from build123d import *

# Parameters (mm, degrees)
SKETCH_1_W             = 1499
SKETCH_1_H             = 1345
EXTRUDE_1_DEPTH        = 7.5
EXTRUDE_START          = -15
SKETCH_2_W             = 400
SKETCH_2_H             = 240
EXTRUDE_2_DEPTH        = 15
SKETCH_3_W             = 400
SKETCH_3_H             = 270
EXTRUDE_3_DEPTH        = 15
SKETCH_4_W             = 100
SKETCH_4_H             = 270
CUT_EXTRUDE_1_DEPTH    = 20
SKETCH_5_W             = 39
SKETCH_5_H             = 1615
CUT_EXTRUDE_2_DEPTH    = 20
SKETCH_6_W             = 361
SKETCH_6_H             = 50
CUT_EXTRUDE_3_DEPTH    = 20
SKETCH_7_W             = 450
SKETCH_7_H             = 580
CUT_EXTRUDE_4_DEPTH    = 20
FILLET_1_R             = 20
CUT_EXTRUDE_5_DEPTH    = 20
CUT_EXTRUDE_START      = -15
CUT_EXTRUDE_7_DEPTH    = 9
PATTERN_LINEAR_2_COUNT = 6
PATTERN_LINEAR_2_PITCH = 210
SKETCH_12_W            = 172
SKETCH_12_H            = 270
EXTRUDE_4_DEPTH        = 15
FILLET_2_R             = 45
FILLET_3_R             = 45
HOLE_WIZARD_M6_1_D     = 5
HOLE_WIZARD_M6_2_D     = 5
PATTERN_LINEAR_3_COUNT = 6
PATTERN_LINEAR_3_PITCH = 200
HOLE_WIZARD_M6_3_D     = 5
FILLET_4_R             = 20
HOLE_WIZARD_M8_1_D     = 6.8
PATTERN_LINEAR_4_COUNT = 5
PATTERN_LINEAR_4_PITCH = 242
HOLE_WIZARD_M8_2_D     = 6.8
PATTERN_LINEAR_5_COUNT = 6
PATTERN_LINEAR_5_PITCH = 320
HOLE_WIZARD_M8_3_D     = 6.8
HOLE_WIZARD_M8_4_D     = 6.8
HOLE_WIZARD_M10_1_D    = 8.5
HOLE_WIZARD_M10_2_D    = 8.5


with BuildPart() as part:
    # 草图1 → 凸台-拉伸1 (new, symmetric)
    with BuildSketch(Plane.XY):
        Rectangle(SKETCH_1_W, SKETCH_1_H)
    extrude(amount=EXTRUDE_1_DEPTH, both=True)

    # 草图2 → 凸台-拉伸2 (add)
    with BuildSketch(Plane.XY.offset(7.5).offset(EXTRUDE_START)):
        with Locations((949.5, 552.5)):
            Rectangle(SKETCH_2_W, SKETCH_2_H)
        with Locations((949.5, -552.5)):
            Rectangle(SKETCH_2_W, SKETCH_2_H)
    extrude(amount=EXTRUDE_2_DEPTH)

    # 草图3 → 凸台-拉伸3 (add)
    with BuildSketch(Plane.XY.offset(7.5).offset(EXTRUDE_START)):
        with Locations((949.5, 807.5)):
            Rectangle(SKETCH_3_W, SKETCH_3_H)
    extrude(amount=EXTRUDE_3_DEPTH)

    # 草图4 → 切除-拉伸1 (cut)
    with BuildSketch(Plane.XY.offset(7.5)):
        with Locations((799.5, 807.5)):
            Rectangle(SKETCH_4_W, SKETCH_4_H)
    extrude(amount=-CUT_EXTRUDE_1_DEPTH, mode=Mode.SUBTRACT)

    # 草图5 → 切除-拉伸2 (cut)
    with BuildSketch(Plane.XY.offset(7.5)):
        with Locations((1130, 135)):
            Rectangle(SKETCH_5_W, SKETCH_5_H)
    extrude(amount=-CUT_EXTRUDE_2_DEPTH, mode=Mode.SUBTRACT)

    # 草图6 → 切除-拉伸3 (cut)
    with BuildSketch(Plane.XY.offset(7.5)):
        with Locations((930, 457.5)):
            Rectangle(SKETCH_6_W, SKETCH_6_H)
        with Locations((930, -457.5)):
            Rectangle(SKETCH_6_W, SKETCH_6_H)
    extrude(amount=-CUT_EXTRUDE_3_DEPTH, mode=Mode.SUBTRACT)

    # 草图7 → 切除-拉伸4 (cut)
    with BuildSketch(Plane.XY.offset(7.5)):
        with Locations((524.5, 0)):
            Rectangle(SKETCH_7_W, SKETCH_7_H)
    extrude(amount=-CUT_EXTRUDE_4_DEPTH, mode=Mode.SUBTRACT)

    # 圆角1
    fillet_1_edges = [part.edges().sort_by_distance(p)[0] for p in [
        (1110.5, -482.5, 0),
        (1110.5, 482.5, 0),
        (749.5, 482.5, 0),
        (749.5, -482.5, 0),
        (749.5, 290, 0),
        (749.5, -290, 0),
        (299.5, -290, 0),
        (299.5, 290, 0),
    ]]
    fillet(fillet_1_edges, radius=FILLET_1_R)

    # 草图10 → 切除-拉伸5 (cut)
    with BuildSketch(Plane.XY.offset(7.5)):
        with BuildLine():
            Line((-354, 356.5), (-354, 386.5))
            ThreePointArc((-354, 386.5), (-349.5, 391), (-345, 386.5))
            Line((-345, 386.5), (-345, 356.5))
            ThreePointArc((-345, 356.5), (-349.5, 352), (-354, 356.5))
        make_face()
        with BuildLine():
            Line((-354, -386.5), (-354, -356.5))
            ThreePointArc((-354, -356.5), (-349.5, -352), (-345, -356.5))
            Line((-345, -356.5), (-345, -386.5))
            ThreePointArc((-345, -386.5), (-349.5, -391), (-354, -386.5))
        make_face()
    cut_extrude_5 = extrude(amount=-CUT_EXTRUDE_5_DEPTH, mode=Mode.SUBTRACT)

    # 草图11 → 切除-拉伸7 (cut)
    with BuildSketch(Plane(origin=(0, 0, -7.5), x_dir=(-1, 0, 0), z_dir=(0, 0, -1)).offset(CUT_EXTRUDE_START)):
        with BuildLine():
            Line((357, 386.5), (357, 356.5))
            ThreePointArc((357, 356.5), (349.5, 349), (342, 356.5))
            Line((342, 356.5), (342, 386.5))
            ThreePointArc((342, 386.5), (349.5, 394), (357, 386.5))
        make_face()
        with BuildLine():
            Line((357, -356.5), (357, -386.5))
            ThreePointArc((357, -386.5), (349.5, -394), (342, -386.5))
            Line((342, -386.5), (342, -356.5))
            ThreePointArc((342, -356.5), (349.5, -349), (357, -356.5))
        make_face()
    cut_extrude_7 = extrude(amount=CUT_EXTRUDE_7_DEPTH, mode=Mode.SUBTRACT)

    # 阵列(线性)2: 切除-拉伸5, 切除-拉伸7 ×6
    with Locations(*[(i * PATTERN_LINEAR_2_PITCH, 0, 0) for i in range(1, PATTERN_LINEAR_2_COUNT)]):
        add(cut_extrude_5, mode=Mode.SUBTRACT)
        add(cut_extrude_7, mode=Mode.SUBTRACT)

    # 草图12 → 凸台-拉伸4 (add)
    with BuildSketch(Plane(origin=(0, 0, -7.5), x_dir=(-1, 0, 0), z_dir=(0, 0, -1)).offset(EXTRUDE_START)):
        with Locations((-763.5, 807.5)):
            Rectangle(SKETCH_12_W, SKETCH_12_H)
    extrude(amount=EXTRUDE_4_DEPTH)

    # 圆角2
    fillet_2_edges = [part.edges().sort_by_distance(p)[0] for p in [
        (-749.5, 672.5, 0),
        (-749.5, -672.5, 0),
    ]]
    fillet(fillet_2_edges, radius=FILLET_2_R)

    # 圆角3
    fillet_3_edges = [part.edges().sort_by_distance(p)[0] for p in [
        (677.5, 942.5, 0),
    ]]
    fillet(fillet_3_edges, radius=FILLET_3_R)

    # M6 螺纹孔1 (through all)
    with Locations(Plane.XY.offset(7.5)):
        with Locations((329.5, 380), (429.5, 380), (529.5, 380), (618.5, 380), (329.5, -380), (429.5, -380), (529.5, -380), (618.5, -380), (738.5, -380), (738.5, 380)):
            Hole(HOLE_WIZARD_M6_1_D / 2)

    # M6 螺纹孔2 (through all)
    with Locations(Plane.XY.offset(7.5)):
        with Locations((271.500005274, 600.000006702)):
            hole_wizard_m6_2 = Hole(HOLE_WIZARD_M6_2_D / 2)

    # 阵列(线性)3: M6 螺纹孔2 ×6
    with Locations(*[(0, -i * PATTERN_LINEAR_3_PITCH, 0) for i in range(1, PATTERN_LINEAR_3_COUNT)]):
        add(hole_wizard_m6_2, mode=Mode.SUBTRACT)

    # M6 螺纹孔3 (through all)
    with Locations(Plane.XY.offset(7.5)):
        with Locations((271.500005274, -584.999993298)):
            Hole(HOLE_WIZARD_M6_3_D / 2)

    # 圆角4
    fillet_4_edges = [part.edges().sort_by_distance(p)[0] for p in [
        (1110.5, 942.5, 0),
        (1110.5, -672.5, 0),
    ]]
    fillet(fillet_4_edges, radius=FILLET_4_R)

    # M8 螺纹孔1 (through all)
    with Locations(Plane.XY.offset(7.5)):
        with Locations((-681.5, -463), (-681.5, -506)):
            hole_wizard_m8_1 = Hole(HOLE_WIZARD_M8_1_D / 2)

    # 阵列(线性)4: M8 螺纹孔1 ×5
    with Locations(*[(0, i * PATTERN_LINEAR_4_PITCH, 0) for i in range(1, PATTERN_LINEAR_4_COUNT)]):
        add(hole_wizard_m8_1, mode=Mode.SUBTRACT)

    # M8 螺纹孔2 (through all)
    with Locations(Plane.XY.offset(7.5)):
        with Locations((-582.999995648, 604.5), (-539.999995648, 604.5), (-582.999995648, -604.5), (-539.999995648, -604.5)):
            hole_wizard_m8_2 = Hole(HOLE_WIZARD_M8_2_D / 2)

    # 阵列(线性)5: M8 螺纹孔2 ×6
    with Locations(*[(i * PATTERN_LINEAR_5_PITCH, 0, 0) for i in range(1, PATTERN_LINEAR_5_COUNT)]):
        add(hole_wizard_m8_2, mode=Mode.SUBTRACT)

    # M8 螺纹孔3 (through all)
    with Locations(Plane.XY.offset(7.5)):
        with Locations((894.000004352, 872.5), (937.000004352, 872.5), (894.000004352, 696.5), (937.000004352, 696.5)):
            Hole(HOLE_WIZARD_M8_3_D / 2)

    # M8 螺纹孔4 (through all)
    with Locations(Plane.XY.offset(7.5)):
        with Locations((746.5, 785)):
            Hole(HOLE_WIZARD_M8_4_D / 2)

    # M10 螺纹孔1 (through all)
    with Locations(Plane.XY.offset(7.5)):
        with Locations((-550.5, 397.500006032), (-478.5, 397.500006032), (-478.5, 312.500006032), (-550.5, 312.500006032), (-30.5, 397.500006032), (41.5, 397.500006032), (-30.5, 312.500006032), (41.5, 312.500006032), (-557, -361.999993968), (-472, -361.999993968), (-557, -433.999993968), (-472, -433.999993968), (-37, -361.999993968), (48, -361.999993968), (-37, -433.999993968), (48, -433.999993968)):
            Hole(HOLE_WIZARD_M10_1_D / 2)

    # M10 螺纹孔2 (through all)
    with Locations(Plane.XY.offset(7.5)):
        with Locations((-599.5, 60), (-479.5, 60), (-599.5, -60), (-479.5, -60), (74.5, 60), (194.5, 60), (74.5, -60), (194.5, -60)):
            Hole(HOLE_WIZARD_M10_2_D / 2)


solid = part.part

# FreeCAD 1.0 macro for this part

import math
import FreeCAD as App
import Part
import Sketcher

V = App.Vector
Q = App.Units.Quantity


def edges_at(feature, points):
    """Names of the edges that pass closest to the given points."""
    edges = feature.Shape.Edges
    near = lambda p: min(range(len(edges)), key=lambda i: edges[i].distToShape(Part.Vertex(*p))[0])
    return sorted({f"Edge{near(p) + 1}" for p in points})


def add_polygon(sketch, points):
    """Adds a closed chain of lines whose ends are joined by coincident constraints."""
    first, n = sketch.GeometryCount, len(points)
    for a, b in zip(points, points[1:] + points[:1]):
        sketch.addGeometry(Part.LineSegment(App.Vector(*a, 0), App.Vector(*b, 0)), False)
    for i in range(n):
        sketch.addConstraint(Sketcher.Constraint("Coincident", first + i, 2, first + (i + 1) % n, 1))

doc = App.newDocument("Part")
body = doc.addObject("PartDesign::Body", "Body")

sketch1 = body.newObject("Sketcher::SketchObject", "Sketch")
sketch1.AttachmentSupport = (doc.getObject("XY_Plane"), [""])
sketch1.MapMode = "FlatFace"
add_polygon(sketch1, [(-749.5, 672.5), (-749.5, -672.5), (749.5, -672.5), (749.5, 672.5)])
sketch1.addConstraint(Sketcher.Constraint("Vertical", 0))
sketch1.addConstraint(Sketcher.Constraint("Horizontal", 1))
sketch1.addConstraint(Sketcher.Constraint("Vertical", 2))
sketch1.addConstraint(Sketcher.Constraint("Horizontal", 3))
sketch1.addConstraint(Sketcher.Constraint("Symmetric", 0, 2, 2, 2, -1, 1))
sketch1.addConstraint(Sketcher.Constraint("DistanceX", 1, 1, 1, 2, Q("1499 mm")))
sketch1.addConstraint(Sketcher.Constraint("DistanceY", 0, 2, 0, 1, Q("1345 mm")))
pad1 = body.newObject("PartDesign::Pad", "Pad")
pad1.Profile = sketch1
pad1.Length = 15
pad1.Midplane = True

sketch2 = body.newObject("Sketcher::SketchObject", "Sketch001")
sketch2.AttachmentSupport = (doc.getObject("XY_Plane"), [""])
sketch2.MapMode = "FlatFace"
sketch2.AttachmentOffset = App.Placement(V(0, 0, -7.5), App.Rotation())
add_polygon(sketch2, [(749.5, 672.5), (749.5, 432.5), (1149.5, 432.5), (1149.5, 672.5)])
add_polygon(sketch2, [(749.5, -432.5), (749.5, -672.5), (1149.5, -672.5), (1149.5, -432.5)])
sketch2.addConstraint(Sketcher.Constraint("Vertical", 0))
sketch2.addConstraint(Sketcher.Constraint("Horizontal", 1))
sketch2.addConstraint(Sketcher.Constraint("Vertical", 2))
sketch2.addConstraint(Sketcher.Constraint("Horizontal", 3))
sketch2.addConstraint(Sketcher.Constraint("Vertical", 4))
sketch2.addConstraint(Sketcher.Constraint("Horizontal", 5))
sketch2.addConstraint(Sketcher.Constraint("Vertical", 6))
sketch2.addConstraint(Sketcher.Constraint("Horizontal", 7))
sketch2.addConstraint(Sketcher.Constraint("Symmetric", 3, 2, 4, 2, -1))
sketch2.addConstraint(Sketcher.Constraint("Symmetric", 1, 2, 6, 2, -1))
sketch2.addConstraint(Sketcher.Constraint("DistanceX", 1, 1, 1, 2, Q("400 mm")))
sketch2.addConstraint(Sketcher.Constraint("DistanceY", 0, 2, 0, 1, Q("240 mm")))
sketch2.addConstraint(Sketcher.Constraint("DistanceY", 4, 2, 0, 2, Q("1105 mm")))
sketch2.addConstraint(Sketcher.Constraint("DistanceX", -1, 1, 0, 2, Q("749.5 mm")))
pad2 = body.newObject("PartDesign::Pad", "Pad001")
pad2.Profile = sketch2
pad2.Length = 15

sketch3 = body.newObject("Sketcher::SketchObject", "Sketch002")
sketch3.AttachmentSupport = (doc.getObject("XY_Plane"), [""])
sketch3.MapMode = "FlatFace"
sketch3.AttachmentOffset = App.Placement(V(0, 0, -7.5), App.Rotation())
add_polygon(sketch3, [(749.5, 942.5), (749.5, 672.5), (1149.5, 672.5), (1149.5, 942.5)])
sketch3.addConstraint(Sketcher.Constraint("Vertical", 0))
sketch3.addConstraint(Sketcher.Constraint("Horizontal", 1))
sketch3.addConstraint(Sketcher.Constraint("Vertical", 2))
sketch3.addConstraint(Sketcher.Constraint("Horizontal", 3))
sketch3.addConstraint(Sketcher.Constraint("DistanceX", 1, 1, 1, 2, Q("400 mm")))
sketch3.addConstraint(Sketcher.Constraint("DistanceY", 0, 2, 0, 1, Q("270 mm")))
sketch3.addConstraint(Sketcher.Constraint("DistanceX", -1, 1, 0, 2, Q("749.5 mm")))
sketch3.addConstraint(Sketcher.Constraint("DistanceY", -1, 1, 0, 2, Q("672.5 mm")))
pad3 = body.newObject("PartDesign::Pad", "Pad002")
pad3.Profile = sketch3
pad3.Length = 15

sketch4 = body.newObject("Sketcher::SketchObject", "Sketch003")
sketch4.AttachmentSupport = (doc.getObject("XY_Plane"), [""])
sketch4.MapMode = "FlatFace"
sketch4.AttachmentOffset = App.Placement(V(0, 0, 7.5), App.Rotation())
add_polygon(sketch4, [(749.5, 942.5), (749.5, 672.5), (849.5, 672.5), (849.5, 942.5)])
sketch4.addConstraint(Sketcher.Constraint("Vertical", 0))
sketch4.addConstraint(Sketcher.Constraint("Horizontal", 1))
sketch4.addConstraint(Sketcher.Constraint("Vertical", 2))
sketch4.addConstraint(Sketcher.Constraint("Horizontal", 3))
sketch4.addConstraint(Sketcher.Constraint("DistanceX", 1, 1, 1, 2, Q("100 mm")))
sketch4.addConstraint(Sketcher.Constraint("DistanceY", 0, 2, 0, 1, Q("270 mm")))
sketch4.addConstraint(Sketcher.Constraint("DistanceX", -1, 1, 0, 2, Q("749.5 mm")))
sketch4.addConstraint(Sketcher.Constraint("DistanceY", -1, 1, 0, 2, Q("672.5 mm")))
pocket1 = body.newObject("PartDesign::Pocket", "Pocket")
pocket1.Profile = sketch4
pocket1.Length = 20

sketch5 = body.newObject("Sketcher::SketchObject", "Sketch004")
sketch5.AttachmentSupport = (doc.getObject("XY_Plane"), [""])
sketch5.MapMode = "FlatFace"
sketch5.AttachmentOffset = App.Placement(V(0, 0, 7.5), App.Rotation())
add_polygon(sketch5, [(1110.5, 942.5), (1110.5, -672.5), (1149.5, -672.5), (1149.5, 942.5)])
sketch5.addConstraint(Sketcher.Constraint("Vertical", 0))
sketch5.addConstraint(Sketcher.Constraint("Horizontal", 1))
sketch5.addConstraint(Sketcher.Constraint("Vertical", 2))
sketch5.addConstraint(Sketcher.Constraint("Horizontal", 3))
sketch5.addConstraint(Sketcher.Constraint("DistanceX", 1, 1, 1, 2, Q("39 mm")))
sketch5.addConstraint(Sketcher.Constraint("DistanceY", 0, 2, 0, 1, Q("1615 mm")))
sketch5.addConstraint(Sketcher.Constraint("DistanceX", -1, 1, 0, 2, Q("1110.5 mm")))
sketch5.addConstraint(Sketcher.Constraint("DistanceY", 0, 2, -1, 1, Q("672.5 mm")))
pocket2 = body.newObject("PartDesign::Pocket", "Pocket001")
pocket2.Profile = sketch5
pocket2.Length = 20

sketch6 = body.newObject("Sketcher::SketchObject", "Sketch005")
sketch6.AttachmentSupport = (doc.getObject("XY_Plane"), [""])
sketch6.MapMode = "FlatFace"
sketch6.AttachmentOffset = App.Placement(V(0, 0, 7.5), App.Rotation())
add_polygon(sketch6, [(749.5, 482.5), (749.5, 432.5), (1110.5, 432.5), (1110.5, 482.5)])
add_polygon(sketch6, [(749.5, -432.5), (749.5, -482.5), (1110.5, -482.5), (1110.5, -432.5)])
sketch6.addConstraint(Sketcher.Constraint("Vertical", 0))
sketch6.addConstraint(Sketcher.Constraint("Horizontal", 1))
sketch6.addConstraint(Sketcher.Constraint("Vertical", 2))
sketch6.addConstraint(Sketcher.Constraint("Horizontal", 3))
sketch6.addConstraint(Sketcher.Constraint("Vertical", 4))
sketch6.addConstraint(Sketcher.Constraint("Horizontal", 5))
sketch6.addConstraint(Sketcher.Constraint("Vertical", 6))
sketch6.addConstraint(Sketcher.Constraint("Horizontal", 7))
sketch6.addConstraint(Sketcher.Constraint("Symmetric", 3, 2, 4, 2, -1))
sketch6.addConstraint(Sketcher.Constraint("Symmetric", 1, 2, 6, 2, -1))
sketch6.addConstraint(Sketcher.Constraint("DistanceX", 1, 1, 1, 2, Q("361 mm")))
sketch6.addConstraint(Sketcher.Constraint("DistanceY", 0, 2, 0, 1, Q("50 mm")))
sketch6.addConstraint(Sketcher.Constraint("DistanceY", 4, 2, 0, 2, Q("915 mm")))
sketch6.addConstraint(Sketcher.Constraint("DistanceX", -1, 1, 0, 2, Q("749.5 mm")))
pocket3 = body.newObject("PartDesign::Pocket", "Pocket002")
pocket3.Profile = sketch6
pocket3.Length = 20

sketch7 = body.newObject("Sketcher::SketchObject", "Sketch006")
sketch7.AttachmentSupport = (doc.getObject("XY_Plane"), [""])
sketch7.MapMode = "FlatFace"
sketch7.AttachmentOffset = App.Placement(V(0, 0, 7.5), App.Rotation())
add_polygon(sketch7, [(299.5, 290), (299.5, -290), (749.5, -290), (749.5, 290)])
sketch7.addConstraint(Sketcher.Constraint("Vertical", 0))
sketch7.addConstraint(Sketcher.Constraint("Horizontal", 1))
sketch7.addConstraint(Sketcher.Constraint("Vertical", 2))
sketch7.addConstraint(Sketcher.Constraint("Horizontal", 3))
sketch7.addConstraint(Sketcher.Constraint("DistanceX", 1, 1, 1, 2, Q("450 mm")))
sketch7.addConstraint(Sketcher.Constraint("DistanceY", 0, 2, 0, 1, Q("580 mm")))
sketch7.addConstraint(Sketcher.Constraint("DistanceY", 0, 2, -1, 1, Q("290 mm")))
sketch7.addConstraint(Sketcher.Constraint("DistanceX", -1, 1, 0, 2, Q("299.5 mm")))
pocket4 = body.newObject("PartDesign::Pocket", "Pocket003")
pocket4.Profile = sketch7
pocket4.Length = 20
doc.recompute()

fillet = body.newObject("PartDesign::Fillet", "Fillet")
fillet.Base = (pocket4, edges_at(pocket4, [
    (1110.5, -482.5, 0),
    (1110.5, 482.5, 0),
    (749.5, 482.5, 0),
    (749.5, -482.5, 0),
    (749.5, 290, 0),
    (749.5, -290, 0),
    (299.5, -290, 0),
    (299.5, 290, 0),
]))
fillet.Radius = 20

sketch8 = body.newObject("Sketcher::SketchObject", "Sketch007")
sketch8.AttachmentSupport = (doc.getObject("XY_Plane"), [""])
sketch8.MapMode = "FlatFace"
sketch8.AttachmentOffset = App.Placement(V(0, 0, 7.5), App.Rotation())
sketch8.addGeometry(Part.LineSegment(V(-354, 386.5, 0), V(-354, 356.5, 0)), False)
sketch8.addGeometry(Part.ArcOfCircle(Part.Circle(V(-349.5, 356.5, 0), V(0, 0, 1), 4.5), math.radians(180), math.radians(360)), False)
sketch8.addGeometry(Part.LineSegment(V(-345, 356.5, 0), V(-345, 386.5, 0)), False)
sketch8.addGeometry(Part.ArcOfCircle(Part.Circle(V(-349.5, 386.5, 0), V(0, 0, 1), 4.5), math.radians(0), math.radians(180)), False)
sketch8.addGeometry(Part.LineSegment(V(-354, -356.5, 0), V(-354, -386.5, 0)), False)
sketch8.addGeometry(Part.ArcOfCircle(Part.Circle(V(-349.5, -386.5, 0), V(0, 0, 1), 4.5), math.radians(180), math.radians(360)), False)
sketch8.addGeometry(Part.LineSegment(V(-345, -386.5, 0), V(-345, -356.5, 0)), False)
sketch8.addGeometry(Part.ArcOfCircle(Part.Circle(V(-349.5, -356.5, 0), V(0, 0, 1), 4.5), math.radians(0), math.radians(180)), False)
sketch8.addConstraint(Sketcher.Constraint("Tangent", 0, 2, 1, 1))
sketch8.addConstraint(Sketcher.Constraint("Tangent", 1, 2, 2, 1))
sketch8.addConstraint(Sketcher.Constraint("Tangent", 2, 2, 3, 1))
sketch8.addConstraint(Sketcher.Constraint("Tangent", 3, 2, 0, 1))
sketch8.addConstraint(Sketcher.Constraint("Tangent", 4, 2, 5, 1))
sketch8.addConstraint(Sketcher.Constraint("Tangent", 5, 2, 6, 1))
sketch8.addConstraint(Sketcher.Constraint("Tangent", 6, 2, 7, 1))
sketch8.addConstraint(Sketcher.Constraint("Tangent", 7, 2, 4, 1))
sketch8.addConstraint(Sketcher.Constraint("Vertical", 0))
sketch8.addConstraint(Sketcher.Constraint("Vertical", 2))
sketch8.addConstraint(Sketcher.Constraint("Vertical", 4))
sketch8.addConstraint(Sketcher.Constraint("Vertical", 6))
sketch8.addConstraint(Sketcher.Constraint("Equal", 3, 5))
sketch8.addConstraint(Sketcher.Constraint("Symmetric", 3, 3, 5, 3, -1))
sketch8.addConstraint(Sketcher.Constraint("Equal", 2, 4))
sketch8.addConstraint(Sketcher.Constraint("Radius", 1, Q("4.5 mm")))
sketch8.addConstraint(Sketcher.Constraint("DistanceY", 0, 2, 0, 1, Q("30 mm")))
sketch8.addConstraint(Sketcher.Constraint("DistanceX", 0, 2, -1, 1, Q("354 mm")))
sketch8.addConstraint(Sketcher.Constraint("DistanceY", 5, 3, 1, 3, Q("743 mm")))
pocket5 = body.newObject("PartDesign::Pocket", "Pocket004")
pocket5.Profile = sketch8
pocket5.Length = 20

sketch9 = body.newObject("Sketcher::SketchObject", "Sketch008")
sketch9.AttachmentSupport = (doc.getObject("XY_Plane"), [""])
sketch9.MapMode = "FlatFace"
sketch9.AttachmentOffset = App.Placement(V(0, 0, 7.5), App.Rotation())
sketch9.addGeometry(Part.LineSegment(V(-357, 356.5, 0), V(-357, 386.5, 0)), False)
sketch9.addGeometry(Part.ArcOfCircle(Part.Circle(V(-349.5, 386.5, 0), V(0, 0, 1), 7.5), math.radians(0), math.radians(180)), False)
sketch9.addGeometry(Part.LineSegment(V(-342, 386.5, 0), V(-342, 356.5, 0)), False)
sketch9.addGeometry(Part.ArcOfCircle(Part.Circle(V(-349.5, 356.5, 0), V(0, 0, 1), 7.5), math.radians(180), math.radians(360)), False)
sketch9.addGeometry(Part.LineSegment(V(-357, -386.5, 0), V(-357, -356.5, 0)), False)
sketch9.addGeometry(Part.ArcOfCircle(Part.Circle(V(-349.5, -356.5, 0), V(0, 0, 1), 7.5), math.radians(0), math.radians(180)), False)
sketch9.addGeometry(Part.LineSegment(V(-342, -356.5, 0), V(-342, -386.5, 0)), False)
sketch9.addGeometry(Part.ArcOfCircle(Part.Circle(V(-349.5, -386.5, 0), V(0, 0, 1), 7.5), math.radians(180), math.radians(360)), False)
sketch9.addConstraint(Sketcher.Constraint("Tangent", 0, 2, 1, 2))
sketch9.addConstraint(Sketcher.Constraint("Tangent", 1, 1, 2, 1))
sketch9.addConstraint(Sketcher.Constraint("Tangent", 2, 2, 3, 2))
sketch9.addConstraint(Sketcher.Constraint("Tangent", 3, 1, 0, 1))
sketch9.addConstraint(Sketcher.Constraint("Tangent", 4, 2, 5, 2))
sketch9.addConstraint(Sketcher.Constraint("Tangent", 5, 1, 6, 1))
sketch9.addConstraint(Sketcher.Constraint("Tangent", 6, 2, 7, 2))
sketch9.addConstraint(Sketcher.Constraint("Tangent", 7, 1, 4, 1))
sketch9.addConstraint(Sketcher.Constraint("Vertical", 0))
sketch9.addConstraint(Sketcher.Constraint("Vertical", 2))
sketch9.addConstraint(Sketcher.Constraint("Vertical", 4))
sketch9.addConstraint(Sketcher.Constraint("Vertical", 6))
sketch9.addConstraint(Sketcher.Constraint("Equal", 3, 5))
sketch9.addConstraint(Sketcher.Constraint("Symmetric", 3, 3, 5, 3, -1))
sketch9.addConstraint(Sketcher.Constraint("Equal", 2, 4))
sketch9.addConstraint(Sketcher.Constraint("Radius", 1, Q("7.5 mm")))
sketch9.addConstraint(Sketcher.Constraint("DistanceY", 0, 1, 0, 2, Q("30 mm")))
sketch9.addConstraint(Sketcher.Constraint("DistanceX", 0, 2, -1, 1, Q("357 mm")))
sketch9.addConstraint(Sketcher.Constraint("DistanceY", 5, 3, 3, 3, Q("713 mm")))
pocket6 = body.newObject("PartDesign::Pocket", "Pocket005")
pocket6.Profile = sketch9
pocket6.Length = 9
doc.recompute()

linearpattern = body.newObject("PartDesign::LinearPattern", "LinearPattern")
linearpattern.Originals = [pocket5, pocket6]
linearpattern.Direction = (doc.getObject("X_Axis"), [""])
linearpattern.Mode = "offset"
linearpattern.Offset = 210
linearpattern.Occurrences = 6
body.Tip = linearpattern

sketch10 = body.newObject("Sketcher::SketchObject", "Sketch009")
sketch10.AttachmentSupport = (doc.getObject("XY_Plane"), [""])
sketch10.MapMode = "FlatFace"
sketch10.AttachmentOffset = App.Placement(V(0, 0, 7.5), App.Rotation())
add_polygon(sketch10, [(849.5, 942.5), (849.5, 672.5), (677.5, 672.5), (677.5, 942.5)])
sketch10.addConstraint(Sketcher.Constraint("Vertical", 0))
sketch10.addConstraint(Sketcher.Constraint("Horizontal", 1))
sketch10.addConstraint(Sketcher.Constraint("Vertical", 2))
sketch10.addConstraint(Sketcher.Constraint("Horizontal", 3))
sketch10.addConstraint(Sketcher.Constraint("DistanceX", 1, 2, 1, 1, Q("172 mm")))
sketch10.addConstraint(Sketcher.Constraint("DistanceY", 0, 2, 0, 1, Q("270 mm")))
sketch10.addConstraint(Sketcher.Constraint("DistanceX", -1, 1, 0, 2, Q("849.5 mm")))
sketch10.addConstraint(Sketcher.Constraint("DistanceY", -1, 1, 0, 2, Q("672.5 mm")))
pad4 = body.newObject("PartDesign::Pad", "Pad003")
pad4.Profile = sketch10
pad4.Length = 15
pad4.Reversed = True
doc.recompute()

fillet2 = body.newObject("PartDesign::Fillet", "Fillet001")
fillet2.Base = (pad4, edges_at(pad4, [(-749.5, 672.5, 0), (-749.5, -672.5, 0)]))
fillet2.Radius = 45
doc.recompute()

fillet3 = body.newObject("PartDesign::Fillet", "Fillet002")
fillet3.Base = (fillet2, edges_at(fillet2, [(677.5, 942.5, 0)]))
fillet3.Radius = 45

sketch11 = body.newObject("Sketcher::SketchObject", "Sketch010")
sketch11.AttachmentSupport = (doc.getObject("XY_Plane"), [""])
sketch11.MapMode = "FlatFace"
sketch11.AttachmentOffset = App.Placement(V(0, 0, 7.5), App.Rotation())
sketch11.addGeometry(Part.Circle(V(329.5, 380, 0), V(0, 0, 1), 2.5), False)
sketch11.addGeometry(Part.Circle(V(429.5, 380, 0), V(0, 0, 1), 2.5), False)
sketch11.addGeometry(Part.Circle(V(529.5, 380, 0), V(0, 0, 1), 2.5), False)
sketch11.addGeometry(Part.Circle(V(618.5, 380, 0), V(0, 0, 1), 2.5), False)
sketch11.addGeometry(Part.Circle(V(329.5, -380, 0), V(0, 0, 1), 2.5), False)
sketch11.addGeometry(Part.Circle(V(429.5, -380, 0), V(0, 0, 1), 2.5), False)
sketch11.addGeometry(Part.Circle(V(529.5, -380, 0), V(0, 0, 1), 2.5), False)
sketch11.addGeometry(Part.Circle(V(618.5, -380, 0), V(0, 0, 1), 2.5), False)
sketch11.addGeometry(Part.Circle(V(738.5, -380, 0), V(0, 0, 1), 2.5), False)
sketch11.addGeometry(Part.Circle(V(738.5, 380, 0), V(0, 0, 1), 2.5), False)
sketch11.addConstraint(Sketcher.Constraint("Equal", 0, 1))
sketch11.addConstraint(Sketcher.Constraint("Equal", 1, 2))
sketch11.addConstraint(Sketcher.Constraint("Equal", 2, 3))
sketch11.addConstraint(Sketcher.Constraint("Equal", 3, 4))
sketch11.addConstraint(Sketcher.Constraint("Equal", 4, 5))
sketch11.addConstraint(Sketcher.Constraint("Equal", 5, 6))
sketch11.addConstraint(Sketcher.Constraint("Equal", 6, 7))
sketch11.addConstraint(Sketcher.Constraint("Equal", 7, 8))
sketch11.addConstraint(Sketcher.Constraint("Equal", 8, 9))
sketch11.addConstraint(Sketcher.Constraint("Symmetric", 0, 3, 4, 3, -1))
sketch11.addConstraint(Sketcher.Constraint("Symmetric", 1, 3, 5, 3, -1))
sketch11.addConstraint(Sketcher.Constraint("Symmetric", 2, 3, 6, 3, -1))
sketch11.addConstraint(Sketcher.Constraint("Symmetric", 3, 3, 7, 3, -1))
sketch11.addConstraint(Sketcher.Constraint("Symmetric", 8, 3, 9, 3, -1))
sketch11.addConstraint(Sketcher.Constraint("Horizontal", 0, 3, 1, 3))
sketch11.addConstraint(Sketcher.Constraint("Horizontal", 1, 3, 2, 3))
sketch11.addConstraint(Sketcher.Constraint("Horizontal", 2, 3, 3, 3))
sketch11.addConstraint(Sketcher.Constraint("Horizontal", 7, 3, 8, 3))
sketch11.addConstraint(Sketcher.Constraint("Diameter", 0, Q("5 mm")))
sketch11.addConstraint(Sketcher.Constraint("DistanceY", -1, 1, 0, 3, Q("380 mm")))
sketch11.addConstraint(Sketcher.Constraint("DistanceX", 0, 3, 1, 3, Q("100 mm")))
sketch11.addConstraint(Sketcher.Constraint("DistanceX", 1, 3, 2, 3, Q("100 mm")))
sketch11.addConstraint(Sketcher.Constraint("DistanceX", 2, 3, 3, 3, Q("89 mm")))
sketch11.addConstraint(Sketcher.Constraint("DistanceX", 7, 3, 8, 3, Q("120 mm")))
sketch11.addConstraint(Sketcher.Constraint("DistanceX", -1, 1, 0, 3, Q("329.5 mm")))
doc.recompute()
hole = body.newObject("PartDesign::Hole", "Hole")
hole.Profile = sketch11
hole.ThreadType = "None"
hole.Diameter = 5
hole.DepthType = "ThroughAll"

sketch12 = body.newObject("Sketcher::SketchObject", "Sketch011")
sketch12.AttachmentSupport = (doc.getObject("XY_Plane"), [""])
sketch12.MapMode = "FlatFace"
sketch12.AttachmentOffset = App.Placement(V(0, 0, 7.5), App.Rotation())
sketch12.addGeometry(Part.Circle(V(271.500005, 600.000007, 0), V(0, 0, 1), 2.5), False)
sketch12.addConstraint(Sketcher.Constraint("Diameter", 0, Q("5 mm")))
sketch12.addConstraint(Sketcher.Constraint("DistanceX", -1, 1, 0, 3, Q("271.500005 mm")))
sketch12.addConstraint(Sketcher.Constraint("DistanceY", -1, 1, 0, 3, Q("600.000007 mm")))
doc.recompute()
hole2 = body.newObject("PartDesign::Hole", "Hole001")
hole2.Profile = sketch12
hole2.ThreadType = "None"
hole2.Diameter = 5
hole2.DepthType = "ThroughAll"
doc.recompute()

linearpattern2 = body.newObject("PartDesign::LinearPattern", "LinearPattern001")
linearpattern2.Originals = [hole2]
linearpattern2.Direction = (doc.getObject("Y_Axis"), [""])
linearpattern2.Mode = "offset"
linearpattern2.Offset = 200
linearpattern2.Occurrences = 6
linearpattern2.Reversed = True
body.Tip = linearpattern2

sketch13 = body.newObject("Sketcher::SketchObject", "Sketch012")
sketch13.AttachmentSupport = (doc.getObject("XY_Plane"), [""])
sketch13.MapMode = "FlatFace"
sketch13.AttachmentOffset = App.Placement(V(0, 0, 7.5), App.Rotation())
sketch13.addGeometry(Part.Circle(V(271.500005, -584.999993, 0), V(0, 0, 1), 2.5), False)
sketch13.addConstraint(Sketcher.Constraint("Diameter", 0, Q("5 mm")))
sketch13.addConstraint(Sketcher.Constraint("DistanceX", -1, 1, 0, 3, Q("271.500005 mm")))
sketch13.addConstraint(Sketcher.Constraint("DistanceY", 0, 3, -1, 1, Q("584.999993 mm")))
doc.recompute()
hole3 = body.newObject("PartDesign::Hole", "Hole002")
hole3.Profile = sketch13
hole3.ThreadType = "None"
hole3.Diameter = 5
hole3.DepthType = "ThroughAll"
doc.recompute()

fillet4 = body.newObject("PartDesign::Fillet", "Fillet003")
fillet4.Base = (hole3, edges_at(hole3, [(1110.5, 942.5, 0), (1110.5, -672.5, 0)]))
fillet4.Radius = 20

sketch14 = body.newObject("Sketcher::SketchObject", "Sketch013")
sketch14.AttachmentSupport = (doc.getObject("XY_Plane"), [""])
sketch14.MapMode = "FlatFace"
sketch14.AttachmentOffset = App.Placement(V(0, 0, 7.5), App.Rotation())
sketch14.addGeometry(Part.Circle(V(-681.5, -463, 0), V(0, 0, 1), 3.4), False)
sketch14.addGeometry(Part.Circle(V(-681.5, -506, 0), V(0, 0, 1), 3.4), False)
sketch14.addConstraint(Sketcher.Constraint("Equal", 0, 1))
sketch14.addConstraint(Sketcher.Constraint("Vertical", 0, 3, 1, 3))
sketch14.addConstraint(Sketcher.Constraint("Diameter", 0, Q("6.8 mm")))
sketch14.addConstraint(Sketcher.Constraint("DistanceY", 0, 3, -1, 1, Q("463 mm")))
sketch14.addConstraint(Sketcher.Constraint("DistanceY", 1, 3, -1, 1, Q("506 mm")))
sketch14.addConstraint(Sketcher.Constraint("DistanceX", 0, 3, -1, 1, Q("681.5 mm")))
doc.recompute()
hole4 = body.newObject("PartDesign::Hole", "Hole003")
hole4.Profile = sketch14
hole4.ThreadType = "None"
hole4.Diameter = 6.8
hole4.DepthType = "ThroughAll"
doc.recompute()

linearpattern3 = body.newObject("PartDesign::LinearPattern", "LinearPattern002")
linearpattern3.Originals = [hole4]
linearpattern3.Direction = (doc.getObject("Y_Axis"), [""])
linearpattern3.Mode = "offset"
linearpattern3.Offset = 242
linearpattern3.Occurrences = 5
body.Tip = linearpattern3

sketch15 = body.newObject("Sketcher::SketchObject", "Sketch014")
sketch15.AttachmentSupport = (doc.getObject("XY_Plane"), [""])
sketch15.MapMode = "FlatFace"
sketch15.AttachmentOffset = App.Placement(V(0, 0, 7.5), App.Rotation())
sketch15.addGeometry(Part.Circle(V(-582.999996, 604.5, 0), V(0, 0, 1), 3.4), False)
sketch15.addGeometry(Part.Circle(V(-539.999996, 604.5, 0), V(0, 0, 1), 3.4), False)
sketch15.addGeometry(Part.Circle(V(-582.999996, -604.5, 0), V(0, 0, 1), 3.4), False)
sketch15.addGeometry(Part.Circle(V(-539.999996, -604.5, 0), V(0, 0, 1), 3.4), False)
sketch15.addConstraint(Sketcher.Constraint("Equal", 0, 1))
sketch15.addConstraint(Sketcher.Constraint("Equal", 1, 2))
sketch15.addConstraint(Sketcher.Constraint("Equal", 2, 3))
sketch15.addConstraint(Sketcher.Constraint("Symmetric", 0, 3, 2, 3, -1))
sketch15.addConstraint(Sketcher.Constraint("Symmetric", 1, 3, 3, 3, -1))
sketch15.addConstraint(Sketcher.Constraint("Horizontal", 0, 3, 1, 3))
sketch15.addConstraint(Sketcher.Constraint("Diameter", 0, Q("6.8 mm")))
sketch15.addConstraint(Sketcher.Constraint("DistanceX", 0, 3, 1, 3, Q("43 mm")))
sketch15.addConstraint(Sketcher.Constraint("DistanceY", 2, 3, 0, 3, Q("1209 mm")))
sketch15.addConstraint(Sketcher.Constraint("DistanceX", 0, 3, -1, 1, Q("582.999996 mm")))
doc.recompute()
hole5 = body.newObject("PartDesign::Hole", "Hole004")
hole5.Profile = sketch15
hole5.ThreadType = "None"
hole5.Diameter = 6.8
hole5.DepthType = "ThroughAll"
doc.recompute()

linearpattern4 = body.newObject("PartDesign::LinearPattern", "LinearPattern003")
linearpattern4.Originals = [hole5]
linearpattern4.Direction = (doc.getObject("X_Axis"), [""])
linearpattern4.Mode = "offset"
linearpattern4.Offset = 320
linearpattern4.Occurrences = 6
body.Tip = linearpattern4

sketch16 = body.newObject("Sketcher::SketchObject", "Sketch015")
sketch16.AttachmentSupport = (doc.getObject("XY_Plane"), [""])
sketch16.MapMode = "FlatFace"
sketch16.AttachmentOffset = App.Placement(V(0, 0, 7.5), App.Rotation())
sketch16.addGeometry(Part.Circle(V(894.000004, 872.5, 0), V(0, 0, 1), 3.4), False)
sketch16.addGeometry(Part.Circle(V(937.000004, 872.5, 0), V(0, 0, 1), 3.4), False)
sketch16.addGeometry(Part.Circle(V(894.000004, 696.5, 0), V(0, 0, 1), 3.4), False)
sketch16.addGeometry(Part.Circle(V(937.000004, 696.5, 0), V(0, 0, 1), 3.4), False)
sketch16.addConstraint(Sketcher.Constraint("Equal", 0, 1))
sketch16.addConstraint(Sketcher.Constraint("Equal", 1, 2))
sketch16.addConstraint(Sketcher.Constraint("Equal", 2, 3))
sketch16.addConstraint(Sketcher.Constraint("Horizontal", 0, 3, 1, 3))
sketch16.addConstraint(Sketcher.Constraint("Horizontal", 2, 3, 3, 3))
sketch16.addConstraint(Sketcher.Constraint("Vertical", 0, 3, 2, 3))
sketch16.addConstraint(Sketcher.Constraint("Vertical", 1, 3, 3, 3))
sketch16.addConstraint(Sketcher.Constraint("Diameter", 0, Q("6.8 mm")))
sketch16.addConstraint(Sketcher.Constraint("DistanceX", 0, 3, 1, 3, Q("43 mm")))
sketch16.addConstraint(Sketcher.Constraint("DistanceY", 2, 3, 0, 3, Q("176 mm")))
sketch16.addConstraint(Sketcher.Constraint("DistanceY", -1, 1, 0, 3, Q("872.5 mm")))
sketch16.addConstraint(Sketcher.Constraint("DistanceX", -1, 1, 0, 3, Q("894.000004 mm")))
doc.recompute()
hole6 = body.newObject("PartDesign::Hole", "Hole005")
hole6.Profile = sketch16
hole6.ThreadType = "None"
hole6.Diameter = 6.8
hole6.DepthType = "ThroughAll"

sketch17 = body.newObject("Sketcher::SketchObject", "Sketch016")
sketch17.AttachmentSupport = (doc.getObject("XY_Plane"), [""])
sketch17.MapMode = "FlatFace"
sketch17.AttachmentOffset = App.Placement(V(0, 0, 7.5), App.Rotation())
sketch17.addGeometry(Part.Circle(V(746.5, 785, 0), V(0, 0, 1), 3.4), False)
sketch17.addConstraint(Sketcher.Constraint("Diameter", 0, Q("6.8 mm")))
sketch17.addConstraint(Sketcher.Constraint("DistanceY", -1, 1, 0, 3, Q("785 mm")))
sketch17.addConstraint(Sketcher.Constraint("DistanceX", -1, 1, 0, 3, Q("746.5 mm")))
doc.recompute()
hole7 = body.newObject("PartDesign::Hole", "Hole006")
hole7.Profile = sketch17
hole7.ThreadType = "None"
hole7.Diameter = 6.8
hole7.DepthType = "ThroughAll"

sketch18 = body.newObject("Sketcher::SketchObject", "Sketch017")
sketch18.AttachmentSupport = (doc.getObject("XY_Plane"), [""])
sketch18.MapMode = "FlatFace"
sketch18.AttachmentOffset = App.Placement(V(0, 0, 7.5), App.Rotation())
sketch18.addGeometry(Part.Circle(V(-550.5, 397.500006, 0), V(0, 0, 1), 4.25), False)
sketch18.addGeometry(Part.Circle(V(-478.5, 397.500006, 0), V(0, 0, 1), 4.25), False)
sketch18.addGeometry(Part.Circle(V(-478.5, 312.500006, 0), V(0, 0, 1), 4.25), False)
sketch18.addGeometry(Part.Circle(V(-550.5, 312.500006, 0), V(0, 0, 1), 4.25), False)
sketch18.addGeometry(Part.Circle(V(-30.5, 397.500006, 0), V(0, 0, 1), 4.25), False)
sketch18.addGeometry(Part.Circle(V(41.5, 397.500006, 0), V(0, 0, 1), 4.25), False)
sketch18.addGeometry(Part.Circle(V(-30.5, 312.500006, 0), V(0, 0, 1), 4.25), False)
sketch18.addGeometry(Part.Circle(V(41.5, 312.500006, 0), V(0, 0, 1), 4.25), False)
sketch18.addGeometry(Part.Circle(V(-557, -361.999994, 0), V(0, 0, 1), 4.25), False)
sketch18.addGeometry(Part.Circle(V(-472, -361.999994, 0), V(0, 0, 1), 4.25), False)
sketch18.addGeometry(Part.Circle(V(-557, -433.999994, 0), V(0, 0, 1), 4.25), False)
sketch18.addGeometry(Part.Circle(V(-472, -433.999994, 0), V(0, 0, 1), 4.25), False)
sketch18.addGeometry(Part.Circle(V(-37, -361.999994, 0), V(0, 0, 1), 4.25), False)
sketch18.addGeometry(Part.Circle(V(48, -361.999994, 0), V(0, 0, 1), 4.25), False)
sketch18.addGeometry(Part.Circle(V(-37, -433.999994, 0), V(0, 0, 1), 4.25), False)
sketch18.addGeometry(Part.Circle(V(48, -433.999994, 0), V(0, 0, 1), 4.25), False)
sketch18.addConstraint(Sketcher.Constraint("Equal", 0, 1))
sketch18.addConstraint(Sketcher.Constraint("Equal", 1, 2))
sketch18.addConstraint(Sketcher.Constraint("Equal", 2, 3))
sketch18.addConstraint(Sketcher.Constraint("Equal", 3, 4))
sketch18.addConstraint(Sketcher.Constraint("Equal", 4, 5))
sketch18.addConstraint(Sketcher.Constraint("Equal", 5, 6))
sketch18.addConstraint(Sketcher.Constraint("Equal", 6, 7))
sketch18.addConstraint(Sketcher.Constraint("Equal", 7, 8))
sketch18.addConstraint(Sketcher.Constraint("Equal", 8, 9))
sketch18.addConstraint(Sketcher.Constraint("Equal", 9, 10))
sketch18.addConstraint(Sketcher.Constraint("Equal", 10, 11))
sketch18.addConstraint(Sketcher.Constraint("Equal", 11, 12))
sketch18.addConstraint(Sketcher.Constraint("Equal", 12, 13))
sketch18.addConstraint(Sketcher.Constraint("Equal", 13, 14))
sketch18.addConstraint(Sketcher.Constraint("Equal", 14, 15))
sketch18.addConstraint(Sketcher.Constraint("Horizontal", 0, 3, 1, 3))
sketch18.addConstraint(Sketcher.Constraint("Horizontal", 2, 3, 3, 3))
sketch18.addConstraint(Sketcher.Constraint("Horizontal", 1, 3, 4, 3))
sketch18.addConstraint(Sketcher.Constraint("Horizontal", 4, 3, 5, 3))
sketch18.addConstraint(Sketcher.Constraint("Horizontal", 3, 3, 6, 3))
sketch18.addConstraint(Sketcher.Constraint("Horizontal", 6, 3, 7, 3))
sketch18.addConstraint(Sketcher.Constraint("Horizontal", 8, 3, 9, 3))
sketch18.addConstraint(Sketcher.Constraint("Horizontal", 10, 3, 11, 3))
sketch18.addConstraint(Sketcher.Constraint("Horizontal", 9, 3, 12, 3))
sketch18.addConstraint(Sketcher.Constraint("Horizontal", 12, 3, 13, 3))
sketch18.addConstraint(Sketcher.Constraint("Horizontal", 11, 3, 14, 3))
sketch18.addConstraint(Sketcher.Constraint("Horizontal", 14, 3, 15, 3))
sketch18.addConstraint(Sketcher.Constraint("Vertical", 1, 3, 2, 3))
sketch18.addConstraint(Sketcher.Constraint("Vertical", 0, 3, 3, 3))
sketch18.addConstraint(Sketcher.Constraint("Vertical", 4, 3, 6, 3))
sketch18.addConstraint(Sketcher.Constraint("Vertical", 5, 3, 7, 3))
sketch18.addConstraint(Sketcher.Constraint("Vertical", 8, 3, 10, 3))
sketch18.addConstraint(Sketcher.Constraint("Vertical", 9, 3, 11, 3))
sketch18.addConstraint(Sketcher.Constraint("Vertical", 12, 3, 14, 3))
sketch18.addConstraint(Sketcher.Constraint("Vertical", 13, 3, 15, 3))
sketch18.addConstraint(Sketcher.Constraint("Diameter", 0, Q("8.5 mm")))
sketch18.addConstraint(Sketcher.Constraint("DistanceX", 8, 3, -1, 1, Q("557 mm")))
sketch18.addConstraint(Sketcher.Constraint("DistanceX", 9, 3, -1, 1, Q("472 mm")))
sketch18.addConstraint(Sketcher.Constraint("DistanceX", 12, 3, -1, 1, Q("37 mm")))
sketch18.addConstraint(Sketcher.Constraint("DistanceX", -1, 1, 13, 3, Q("48 mm")))
sketch18.addConstraint(Sketcher.Constraint("DistanceX", 0, 3, 1, 3, Q("72 mm")))
sketch18.addConstraint(Sketcher.Constraint("DistanceY", 2, 3, 1, 3, Q("85 mm")))
sketch18.addConstraint(Sketcher.Constraint("DistanceX", 1, 3, 4, 3, Q("448 mm")))
sketch18.addConstraint(Sketcher.Constraint("DistanceX", 4, 3, 5, 3, Q("72 mm")))
sketch18.addConstraint(Sketcher.Constraint("DistanceY", 10, 3, 8, 3, Q("72 mm")))
sketch18.addConstraint(Sketcher.Constraint("DistanceX", 0, 3, -1, 1, Q("550.5 mm")))
sketch18.addConstraint(Sketcher.Constraint("DistanceY", 8, 3, 3, 3, Q("674.5 mm")))
sketch18.addConstraint(Sketcher.Constraint("DistanceY", -1, 1, 0, 3, Q("397.500006 mm")))
doc.recompute()
hole8 = body.newObject("PartDesign::Hole", "Hole007")
hole8.Profile = sketch18
hole8.ThreadType = "None"
hole8.Diameter = 8.5
hole8.DepthType = "ThroughAll"

sketch19 = body.newObject("Sketcher::SketchObject", "Sketch018")
sketch19.AttachmentSupport = (doc.getObject("XY_Plane"), [""])
sketch19.MapMode = "FlatFace"
sketch19.AttachmentOffset = App.Placement(V(0, 0, 7.5), App.Rotation())
sketch19.addGeometry(Part.Circle(V(-599.5, 60, 0), V(0, 0, 1), 4.25), False)
sketch19.addGeometry(Part.Circle(V(-479.5, 60, 0), V(0, 0, 1), 4.25), False)
sketch19.addGeometry(Part.Circle(V(-599.5, -60, 0), V(0, 0, 1), 4.25), False)
sketch19.addGeometry(Part.Circle(V(-479.5, -60, 0), V(0, 0, 1), 4.25), False)
sketch19.addGeometry(Part.Circle(V(74.5, 60, 0), V(0, 0, 1), 4.25), False)
sketch19.addGeometry(Part.Circle(V(194.5, 60, 0), V(0, 0, 1), 4.25), False)
sketch19.addGeometry(Part.Circle(V(74.5, -60, 0), V(0, 0, 1), 4.25), False)
sketch19.addGeometry(Part.Circle(V(194.5, -60, 0), V(0, 0, 1), 4.25), False)
sketch19.addConstraint(Sketcher.Constraint("Equal", 0, 1))
sketch19.addConstraint(Sketcher.Constraint("Equal", 1, 2))
sketch19.addConstraint(Sketcher.Constraint("Equal", 2, 3))
sketch19.addConstraint(Sketcher.Constraint("Equal", 3, 4))
sketch19.addConstraint(Sketcher.Constraint("Equal", 4, 5))
sketch19.addConstraint(Sketcher.Constraint("Equal", 5, 6))
sketch19.addConstraint(Sketcher.Constraint("Equal", 6, 7))
sketch19.addConstraint(Sketcher.Constraint("Symmetric", 0, 3, 2, 3, -1))
sketch19.addConstraint(Sketcher.Constraint("Symmetric", 1, 3, 3, 3, -1))
sketch19.addConstraint(Sketcher.Constraint("Symmetric", 4, 3, 6, 3, -1))
sketch19.addConstraint(Sketcher.Constraint("Symmetric", 5, 3, 7, 3, -1))
sketch19.addConstraint(Sketcher.Constraint("Horizontal", 0, 3, 1, 3))
sketch19.addConstraint(Sketcher.Constraint("Horizontal", 1, 3, 4, 3))
sketch19.addConstraint(Sketcher.Constraint("Horizontal", 4, 3, 5, 3))
sketch19.addConstraint(Sketcher.Constraint("Diameter", 0, Q("8.5 mm")))
sketch19.addConstraint(Sketcher.Constraint("DistanceY", -1, 1, 0, 3, Q("60 mm")))
sketch19.addConstraint(Sketcher.Constraint("DistanceX", 0, 3, 1, 3, Q("120 mm")))
sketch19.addConstraint(Sketcher.Constraint("DistanceX", 1, 3, 4, 3, Q("554 mm")))
sketch19.addConstraint(Sketcher.Constraint("DistanceX", 4, 3, 5, 3, Q("120 mm")))
sketch19.addConstraint(Sketcher.Constraint("DistanceX", 0, 3, -1, 1, Q("599.5 mm")))
doc.recompute()
hole9 = body.newObject("PartDesign::Hole", "Hole008")
hole9.Profile = sketch19
hole9.ThreadType = "None"
hole9.Diameter = 8.5
hole9.DepthType = "ThroughAll"

doc.recompute()
